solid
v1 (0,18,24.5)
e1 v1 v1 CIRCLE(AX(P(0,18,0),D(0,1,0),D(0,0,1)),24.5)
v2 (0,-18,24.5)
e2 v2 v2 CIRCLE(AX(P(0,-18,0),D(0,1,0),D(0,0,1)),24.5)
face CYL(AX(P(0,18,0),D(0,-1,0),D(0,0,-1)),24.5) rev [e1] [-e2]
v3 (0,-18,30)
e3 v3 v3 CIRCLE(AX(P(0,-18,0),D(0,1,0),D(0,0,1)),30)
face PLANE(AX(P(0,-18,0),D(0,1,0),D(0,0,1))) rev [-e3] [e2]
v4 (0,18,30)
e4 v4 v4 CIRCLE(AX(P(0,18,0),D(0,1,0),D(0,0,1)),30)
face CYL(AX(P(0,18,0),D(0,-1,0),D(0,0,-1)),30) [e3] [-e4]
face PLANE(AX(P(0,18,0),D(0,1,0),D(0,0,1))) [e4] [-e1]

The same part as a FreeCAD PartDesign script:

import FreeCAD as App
import Part
import Sketcher

V = App.Vector
Q = App.Units.Quantity

doc = App.newDocument("Part")
body = doc.addObject("PartDesign::Body", "Body")

# Sketch on XZ plane
sketch1 = body.newObject("Sketcher::SketchObject", "Sketch")
sketch1.AttachmentSupport = (doc.getObject("XZ_Plane"), [""])
sketch1.MapMode = "FlatFace"
sketch1.addGeometry(Part.Circle(V(0, 0, 0), V(0, 0, 1), 30), False)
sketch1.addGeometry(Part.Circle(V(0, 0, 0), V(0, 0, 1), 24.5), False)
sketch1.addConstraint(Sketcher.Constraint("Coincident", 0, 3, -1, 1))
sketch1.addConstraint(Sketcher.Constraint("Coincident", 1, 3, -1, 1))
sketch1.addConstraint(Sketcher.Constraint("Diameter", 0, Q("60 mm")))
sketch1.addConstraint(Sketcher.Constraint("Diameter", 1, Q("49 mm")))
pad1 = body.newObject("PartDesign::Pad", "Pad")
pad1.Profile = sketch1
pad1.Length = 36
pad1.Midplane = True

doc.recompute()
